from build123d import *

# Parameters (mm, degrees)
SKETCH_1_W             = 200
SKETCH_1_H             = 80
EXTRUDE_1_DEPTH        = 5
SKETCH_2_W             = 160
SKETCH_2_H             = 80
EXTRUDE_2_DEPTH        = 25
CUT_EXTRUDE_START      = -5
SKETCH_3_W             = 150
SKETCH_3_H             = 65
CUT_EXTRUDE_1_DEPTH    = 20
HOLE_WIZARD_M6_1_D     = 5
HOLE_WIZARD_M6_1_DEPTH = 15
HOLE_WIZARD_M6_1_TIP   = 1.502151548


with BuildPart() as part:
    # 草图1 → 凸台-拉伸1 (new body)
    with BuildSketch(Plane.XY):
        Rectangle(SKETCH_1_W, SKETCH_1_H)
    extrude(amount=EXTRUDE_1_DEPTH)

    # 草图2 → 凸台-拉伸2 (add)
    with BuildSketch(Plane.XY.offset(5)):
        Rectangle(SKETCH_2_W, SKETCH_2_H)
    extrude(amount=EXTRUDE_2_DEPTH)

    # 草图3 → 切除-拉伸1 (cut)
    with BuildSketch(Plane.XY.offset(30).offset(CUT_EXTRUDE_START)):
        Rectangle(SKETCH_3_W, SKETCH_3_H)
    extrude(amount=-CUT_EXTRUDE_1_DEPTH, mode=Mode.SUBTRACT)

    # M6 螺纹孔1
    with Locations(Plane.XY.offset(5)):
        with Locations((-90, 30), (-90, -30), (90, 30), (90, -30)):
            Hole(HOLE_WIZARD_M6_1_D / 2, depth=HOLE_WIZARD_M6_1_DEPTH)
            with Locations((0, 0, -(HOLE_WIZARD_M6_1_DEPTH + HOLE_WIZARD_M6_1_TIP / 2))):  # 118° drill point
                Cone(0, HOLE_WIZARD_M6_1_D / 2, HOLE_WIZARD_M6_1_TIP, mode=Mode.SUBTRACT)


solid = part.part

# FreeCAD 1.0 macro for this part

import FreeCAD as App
import Part
import Sketcher

V = App.Vector
Q = App.Units.Quantity


def add_polygon(sketch, points):
    """Adds a closed chain of lines whose ends are joined by coincident constraints."""
    first, n = sketch.GeometryCount, len(points)
    for a, b in zip(points, points[1:] + points[:1]):
        sketch.addGeometry(Part.LineSegment(App.Vector(*a, 0), App.Vector(*b, 0)), False)
    for i in range(n):
        sketch.addConstraint(Sketcher.Constraint("Coincident", first + i, 2, first + (i + 1) % n, 1))

doc = App.newDocument("Part")
body = doc.addObject("PartDesign::Body", "Body")

# Sketch on XY plane
sketch1 = body.newObject("Sketcher::SketchObject", "Sketch")
sketch1.AttachmentSupport = (doc.getObject("XY_Plane"), [""])
sketch1.MapMode = "FlatFace"
add_polygon(sketch1, [(-100, 40), (-100, -40), (100, -40), (100, 40)])  # lines 0-3
sketch1.addConstraint([
    Sketcher.Constraint("Vertical", 0),
    Sketcher.Constraint("Horizontal", 1),
    Sketcher.Constraint("Vertical", 2),
    Sketcher.Constraint("Horizontal", 3),
    Sketcher.Constraint("Symmetric", 0, 2, 2, 2, -1, 1),
    Sketcher.Constraint("DistanceX", 1, 1, 1, 2, Q("200 mm")),
    Sketcher.Constraint("DistanceY", 0, 2, 0, 1, Q("80 mm")),
])
pad1 = body.newObject("PartDesign::Pad", "Pad")
pad1.Profile = sketch1
pad1.Length = 5

# Sketch on XY plane
sketch2 = body.newObject("Sketcher::SketchObject", "Sketch001")
sketch2.AttachmentSupport = (doc.getObject("XY_Plane"), [""])
sketch2.MapMode = "FlatFace"
sketch2.AttachmentOffset = App.Placement(V(0, 0, 5), App.Rotation())
add_polygon(sketch2, [(-80, 40), (-80, -40), (80, -40), (80, 40)])  # lines 0-3
sketch2.addConstraint([
    Sketcher.Constraint("Vertical", 0),
    Sketcher.Constraint("Horizontal", 1),
    Sketcher.Constraint("Vertical", 2),
    Sketcher.Constraint("Horizontal", 3),
    Sketcher.Constraint("Symmetric", 0, 2, 2, 2, -1, 1),
    Sketcher.Constraint("DistanceX", 1, 1, 1, 2, Q("160 mm")),
    Sketcher.Constraint("DistanceY", 0, 2, 0, 1, Q("80 mm")),
])
pad2 = body.newObject("PartDesign::Pad", "Pad001")
pad2.Profile = sketch2
pad2.Length = 25

# Sketch on XY plane
sketch3 = body.newObject("Sketcher::SketchObject", "Sketch002")
sketch3.AttachmentSupport = (doc.getObject("XY_Plane"), [""])
sketch3.MapMode = "FlatFace"
sketch3.AttachmentOffset = App.Placement(V(0, 0, 25), App.Rotation())
add_polygon(sketch3, [(-75, 32), (-75, -32), (75, -32), (75, 32)])  # lines 0-3
sketch3.addConstraint([
    Sketcher.Constraint("Vertical", 0),
    Sketcher.Constraint("Horizontal", 1),
    Sketcher.Constraint("Vertical", 2),
    Sketcher.Constraint("Horizontal", 3),
    Sketcher.Constraint("Symmetric", 0, 2, 2, 2, -1, 1),
    Sketcher.Constraint("DistanceX", 1, 1, 1, 2, Q("150 mm")),
    Sketcher.Constraint("DistanceY", 0, 2, 0, 1, Q("65 mm")),
])
pocket1 = body.newObject("PartDesign::Pocket", "Pocket")
pocket1.Profile = sketch3
pocket1.Length = 20

# Sketch on XY plane
sketch4 = body.newObject("Sketcher::SketchObject", "Sketch003")
sketch4.AttachmentSupport = (doc.getObject("XY_Plane"), [""])
sketch4.MapMode = "FlatFace"
sketch4.AttachmentOffset = App.Placement(V(0, 0, 5), App.Rotation())
sketch4.addGeometry([
    Part.Circle(V(-90, 30, 0), V(0, 0, 1), 2.5),
    Part.Circle(V(-90, -30, 0), V(0, 0, 1), 2.5),
    Part.Circle(V(90, 30, 0), V(0, 0, 1), 2.5),
    Part.Circle(V(90, -30, 0), V(0, 0, 1), 2.5),
], False)
sketch4.addConstraint([
    Sketcher.Constraint("Equal", 0, 1),
    Sketcher.Constraint("Equal", 1, 2),
    Sketcher.Constraint("Equal", 2, 3),
    Sketcher.Constraint("Symmetric", 1, 3, 2, 3, -1, 1),
    Sketcher.Constraint("Symmetric", 0, 3, 3, 3, -1, 1),
    Sketcher.Constraint("Symmetric", 0, 3, 2, 3, -2),
    Sketcher.Constraint("Diameter", 0, Q("5 mm")),
    Sketcher.Constraint("DistanceX", 0, 3, -1, 1, Q("90 mm")),
    Sketcher.Constraint("DistanceY", -1, 1, 0, 3, Q("30 mm")),
])
doc.recompute()
hole = body.newObject("PartDesign::Hole", "Hole")
hole.Profile = sketch4
hole.ThreadType = "None"
hole.Diameter = 5
hole.DepthType = "Dimension"
hole.Depth = 15
hole.DrillPoint = "Angled"
hole.DrillPointAngle = 118

doc.recompute()
